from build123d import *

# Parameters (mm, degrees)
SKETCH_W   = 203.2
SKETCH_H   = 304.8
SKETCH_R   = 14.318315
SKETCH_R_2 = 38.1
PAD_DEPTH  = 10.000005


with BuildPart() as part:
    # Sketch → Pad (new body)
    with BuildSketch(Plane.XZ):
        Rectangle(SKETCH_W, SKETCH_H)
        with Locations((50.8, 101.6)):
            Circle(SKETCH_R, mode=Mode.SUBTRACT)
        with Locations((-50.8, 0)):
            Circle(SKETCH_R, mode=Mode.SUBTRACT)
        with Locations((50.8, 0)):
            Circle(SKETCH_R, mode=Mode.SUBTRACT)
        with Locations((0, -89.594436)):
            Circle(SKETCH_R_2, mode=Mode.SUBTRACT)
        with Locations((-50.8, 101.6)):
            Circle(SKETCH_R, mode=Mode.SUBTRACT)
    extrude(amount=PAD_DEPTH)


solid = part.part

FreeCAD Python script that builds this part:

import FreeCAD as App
import Part
import Sketcher
Q = App.Units.Quantity

doc = App.newDocument("Part")
body = doc.addObject("PartDesign::Body", "Body")

# Sketch on XZ plane
sketch1 = body.newObject("Sketcher::SketchObject", "Sketch")
sketch1.AttachmentSupport = (doc.getObject("XZ_Plane"), [""])
sketch1.MapMode = "FlatFace"
sketch1.addGeometry(Part.LineSegment(App.Vector(-102, 152, 0), App.Vector(-102, -152, 0)), False)
sketch1.addGeometry(Part.LineSegment(App.Vector(-102, -152, 0), App.Vector(102, -152, 0)), False)
sketch1.addGeometry(Part.LineSegment(App.Vector(102, -152, 0), App.Vector(102, 152, 0)), False)
sketch1.addGeometry(Part.LineSegment(App.Vector(102, 152, 0), App.Vector(-102, 152, 0)), False)
sketch1.addGeometry(Part.Circle(App.Vector(0, -90, 0), App.Vector(0, 0, 1), 38), False)
sketch1.addGeometry(Part.Circle(App.Vector(-51, 0, 0), App.Vector(0, 0, 1), 14), False)
sketch1.addGeometry(Part.Circle(App.Vector(-51, 102, 0), App.Vector(0, 0, 1), 14), False)
sketch1.addGeometry(Part.Circle(App.Vector(51, 0, 0), App.Vector(0, 0, 1), 14), False)
sketch1.addGeometry(Part.Circle(App.Vector(51, 102, 0), App.Vector(0, 0, 1), 14), False)
sketch1.addConstraint(Sketcher.Constraint("Coincident", 0, 2, 1, 1))
sketch1.addConstraint(Sketcher.Constraint("Coincident", 1, 2, 2, 1))
sketch1.addConstraint(Sketcher.Constraint("Coincident", 2, 2, 3, 1))
sketch1.addConstraint(Sketcher.Constraint("Coincident", 3, 2, 0, 1))
sketch1.addConstraint(Sketcher.Constraint("Vertical", 0))
sketch1.addConstraint(Sketcher.Constraint("Horizontal", 1))
sketch1.addConstraint(Sketcher.Constraint("Vertical", 2))
sketch1.addConstraint(Sketcher.Constraint("Horizontal", 3))
sketch1.addConstraint(Sketcher.Constraint("Equal", 5, 6))
sketch1.addConstraint(Sketcher.Constraint("Equal", 6, 7))
sketch1.addConstraint(Sketcher.Constraint("Equal", 7, 8))
sketch1.addConstraint(Sketcher.Constraint("Symmetric", 5, 3, 7, 3, -1, 1))
sketch1.addConstraint(Sketcher.Constraint("Symmetric", 0, 2, 2, 2, -1, 1))
sketch1.addConstraint(Sketcher.Constraint("Symmetric", 6, 3, 8, 3, -2))
sketch1.addConstraint(Sketcher.Constraint("PointOnObject", 4, 3, -2))
sketch1.addConstraint(Sketcher.Constraint("PointOnObject", 5, 3, -1))
sketch1.addConstraint(Sketcher.Constraint("Vertical", 5, 3, 6, 3))
sketch1.addConstraint(Sketcher.Constraint("Diameter", 4, Q("3 in")))
sketch1.addConstraint(Sketcher.Constraint("DistanceX", 1, 1, 1, 2, Q("8 in")))
sketch1.addConstraint(Sketcher.Constraint("DistanceY", 0, 2, 0, 1, Q("12 in")))
sketch1.addConstraint(Sketcher.Constraint("DistanceX", 5, 3, -1, 1, Q("2 in")))
sketch1.addConstraint(Sketcher.Constraint("DistanceY", -1, 1, 6, 3, Q("4 in")))
sketch1.addConstraint(Sketcher.Constraint("Diameter", 5, 28.63663))
sketch1.addConstraint(Sketcher.Constraint("DistanceY", 4, 3, -1, 1, 89.594436))
pad1 = body.newObject("PartDesign::Pad", "Pad")
pad1.Profile = sketch1
pad1.Length = 10.000005

doc.recompute()
